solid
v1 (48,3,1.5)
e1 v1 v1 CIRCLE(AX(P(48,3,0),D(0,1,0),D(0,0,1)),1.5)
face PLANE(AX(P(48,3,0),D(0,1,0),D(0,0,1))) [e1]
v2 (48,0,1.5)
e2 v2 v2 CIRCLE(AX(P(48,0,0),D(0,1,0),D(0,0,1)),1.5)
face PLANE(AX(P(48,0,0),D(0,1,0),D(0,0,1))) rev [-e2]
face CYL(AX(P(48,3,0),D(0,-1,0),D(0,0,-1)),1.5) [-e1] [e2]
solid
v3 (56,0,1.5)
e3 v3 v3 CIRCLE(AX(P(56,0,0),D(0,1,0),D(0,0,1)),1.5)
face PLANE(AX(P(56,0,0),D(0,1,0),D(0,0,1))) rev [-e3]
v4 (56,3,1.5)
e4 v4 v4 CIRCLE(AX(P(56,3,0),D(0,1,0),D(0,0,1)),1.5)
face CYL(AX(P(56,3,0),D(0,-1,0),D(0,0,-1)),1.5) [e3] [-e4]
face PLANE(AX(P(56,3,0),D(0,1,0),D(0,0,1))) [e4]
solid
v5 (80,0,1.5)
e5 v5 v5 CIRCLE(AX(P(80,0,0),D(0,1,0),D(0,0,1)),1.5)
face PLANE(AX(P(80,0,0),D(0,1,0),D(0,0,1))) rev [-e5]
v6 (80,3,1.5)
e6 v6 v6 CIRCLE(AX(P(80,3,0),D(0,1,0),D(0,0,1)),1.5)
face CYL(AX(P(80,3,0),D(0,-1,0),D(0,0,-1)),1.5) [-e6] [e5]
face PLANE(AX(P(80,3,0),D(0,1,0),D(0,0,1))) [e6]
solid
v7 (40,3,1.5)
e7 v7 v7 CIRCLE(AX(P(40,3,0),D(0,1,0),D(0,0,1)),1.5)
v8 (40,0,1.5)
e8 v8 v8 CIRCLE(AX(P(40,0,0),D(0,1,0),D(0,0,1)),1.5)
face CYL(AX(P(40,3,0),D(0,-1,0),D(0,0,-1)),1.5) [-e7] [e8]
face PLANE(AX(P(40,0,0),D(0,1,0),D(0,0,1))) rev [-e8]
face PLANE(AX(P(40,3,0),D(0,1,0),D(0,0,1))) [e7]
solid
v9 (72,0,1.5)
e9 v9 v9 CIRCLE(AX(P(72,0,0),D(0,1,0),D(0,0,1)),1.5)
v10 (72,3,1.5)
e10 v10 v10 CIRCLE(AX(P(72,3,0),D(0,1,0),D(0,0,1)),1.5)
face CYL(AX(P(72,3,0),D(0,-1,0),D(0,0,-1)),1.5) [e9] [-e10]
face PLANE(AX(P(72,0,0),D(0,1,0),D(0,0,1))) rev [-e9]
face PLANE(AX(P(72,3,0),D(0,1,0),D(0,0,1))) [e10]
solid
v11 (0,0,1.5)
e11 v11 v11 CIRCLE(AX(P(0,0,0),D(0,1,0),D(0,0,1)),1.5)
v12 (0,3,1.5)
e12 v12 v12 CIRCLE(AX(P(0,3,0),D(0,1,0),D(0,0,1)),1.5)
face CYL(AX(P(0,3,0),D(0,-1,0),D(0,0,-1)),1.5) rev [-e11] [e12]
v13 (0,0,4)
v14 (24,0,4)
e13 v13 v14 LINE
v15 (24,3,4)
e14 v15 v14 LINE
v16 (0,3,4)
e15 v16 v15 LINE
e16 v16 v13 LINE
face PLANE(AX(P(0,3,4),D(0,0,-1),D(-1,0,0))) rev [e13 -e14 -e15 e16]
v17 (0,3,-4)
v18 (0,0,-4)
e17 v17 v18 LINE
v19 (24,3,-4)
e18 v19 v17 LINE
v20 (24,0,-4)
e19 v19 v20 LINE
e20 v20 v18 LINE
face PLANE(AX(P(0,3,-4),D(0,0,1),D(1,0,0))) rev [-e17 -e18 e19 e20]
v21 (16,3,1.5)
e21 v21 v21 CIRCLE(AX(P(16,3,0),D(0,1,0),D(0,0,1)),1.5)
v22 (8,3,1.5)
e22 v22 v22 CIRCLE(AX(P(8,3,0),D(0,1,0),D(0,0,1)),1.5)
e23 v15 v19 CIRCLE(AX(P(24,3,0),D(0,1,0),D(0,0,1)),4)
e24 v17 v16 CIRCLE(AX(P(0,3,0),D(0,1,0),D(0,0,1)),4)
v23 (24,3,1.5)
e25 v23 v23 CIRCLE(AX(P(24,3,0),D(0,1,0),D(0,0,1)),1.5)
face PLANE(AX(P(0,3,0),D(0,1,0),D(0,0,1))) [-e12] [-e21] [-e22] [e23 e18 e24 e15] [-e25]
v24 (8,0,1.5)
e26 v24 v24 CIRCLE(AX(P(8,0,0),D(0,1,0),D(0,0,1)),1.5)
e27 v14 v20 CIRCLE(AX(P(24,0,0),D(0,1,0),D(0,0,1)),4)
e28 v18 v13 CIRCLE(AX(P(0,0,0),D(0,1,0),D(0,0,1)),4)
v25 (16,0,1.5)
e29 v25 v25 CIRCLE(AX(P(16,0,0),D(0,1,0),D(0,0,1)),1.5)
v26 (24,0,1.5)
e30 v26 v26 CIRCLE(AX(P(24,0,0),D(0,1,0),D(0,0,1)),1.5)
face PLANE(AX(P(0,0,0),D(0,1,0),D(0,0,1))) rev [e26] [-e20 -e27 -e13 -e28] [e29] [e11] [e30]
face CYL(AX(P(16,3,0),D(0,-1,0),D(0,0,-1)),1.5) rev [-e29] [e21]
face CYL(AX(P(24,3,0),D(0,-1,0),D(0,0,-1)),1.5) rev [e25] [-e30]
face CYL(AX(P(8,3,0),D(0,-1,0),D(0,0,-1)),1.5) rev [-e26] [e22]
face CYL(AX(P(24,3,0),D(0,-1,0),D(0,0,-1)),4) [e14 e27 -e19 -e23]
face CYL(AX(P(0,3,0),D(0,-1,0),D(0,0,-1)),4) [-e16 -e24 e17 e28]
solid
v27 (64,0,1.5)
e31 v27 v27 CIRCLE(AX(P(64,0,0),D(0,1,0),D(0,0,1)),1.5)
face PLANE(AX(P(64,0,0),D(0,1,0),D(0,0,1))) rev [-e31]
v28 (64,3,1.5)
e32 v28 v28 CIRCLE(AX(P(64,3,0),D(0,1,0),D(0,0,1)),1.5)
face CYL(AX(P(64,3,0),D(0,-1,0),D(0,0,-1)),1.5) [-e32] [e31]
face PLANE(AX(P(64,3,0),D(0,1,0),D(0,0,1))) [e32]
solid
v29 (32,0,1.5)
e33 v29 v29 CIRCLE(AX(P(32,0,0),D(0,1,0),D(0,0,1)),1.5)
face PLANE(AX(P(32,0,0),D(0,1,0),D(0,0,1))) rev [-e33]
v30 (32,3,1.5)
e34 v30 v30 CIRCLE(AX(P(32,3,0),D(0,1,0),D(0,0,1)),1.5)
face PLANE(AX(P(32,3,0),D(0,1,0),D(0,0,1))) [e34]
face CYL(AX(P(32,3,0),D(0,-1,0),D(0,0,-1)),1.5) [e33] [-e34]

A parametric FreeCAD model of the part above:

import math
import FreeCAD as App
import Part
import Sketcher
from FreeCAD import Vector
Q = App.Units.Quantity

doc = App.newDocument("Part")
params = doc.addObject("Spreadsheet::Sheet", "Params")
for row, (alias, value) in enumerate([
    ("sketch1_diameter", "3 mm"),
    ("pad1_length", "3 mm"),
    ("sketch2_diameter", "3 mm"),
    ("pad2_length", "3 mm"),
    ("sketch3_diameter", "3 mm"),
    ("pad3_length", "3 mm"),
    ("sketch4_diameter", "3 mm"),
    ("pad4_length", "3 mm"),
    ("sketch5_diameter", "3 mm"),
    ("pad5_length", "3 mm"),
    ("sketch6_diameter", "3 mm"),
    ("pad6_length", "3 mm"),
    ("sketch7_diameter", "3 mm"),
    ("pad7_length", "3 mm"),
    ("sketch8_diameter", "3 mm"),
    ("sketch8_radius", "4 mm"),
    ("sketch8_width", "24 mm"),
    ("pad8_length", "3 mm"),
], start=1):
    params.set(f"A{row}", alias)
    params.set(f"B{row}", "=" + value)
    params.setAlias(f"B{row}", alias)

body = doc.addObject("PartDesign::Body", "Body")

sketch1 = body.newObject("Sketcher::SketchObject", "Sketch")
sketch1.AttachmentSupport = (doc.getObject("XZ_Plane"), [""])
sketch1.MapMode = "FlatFace"
sketch1.addGeometry(Part.Circle(Vector(32, 0, 0), Vector(0, 0, 1), 1.5), False)
sketch1.addConstraint([
    Sketcher.Constraint("PointOnObject", 0, 3, -1),
    Sketcher.Constraint("Diameter", 0, Q("3 mm")),
    Sketcher.Constraint("DistanceX", -1, 1, 0, 3, Q("32 mm")),
])
sketch1.setExpression("Constraints[1]", "Params.sketch1_diameter")
pad1 = body.newObject("PartDesign::Pad", "Pad")
pad1.Profile = sketch1
pad1.setExpression("Length", "Params.pad1_length")
pad1.Reversed = True
body2 = doc.addObject("PartDesign::Body", "Body001")

sketch2 = body2.newObject("Sketcher::SketchObject", "Sketch001")
sketch2.AttachmentSupport = (doc.getObject("XZ_Plane001"), [""])
sketch2.MapMode = "FlatFace"
sketch2.addGeometry(Part.Circle(Vector(40, 0, 0), Vector(0, 0, 1), 1.5), False)
sketch2.addConstraint([
    Sketcher.Constraint("PointOnObject", 0, 3, -1),
    Sketcher.Constraint("Diameter", 0, Q("3 mm")),
    Sketcher.Constraint("DistanceX", -1, 1, 0, 3, Q("40 mm")),
])
sketch2.setExpression("Constraints[1]", "Params.sketch2_diameter")
pad2 = body2.newObject("PartDesign::Pad", "Pad001")
pad2.Profile = sketch2
pad2.setExpression("Length", "Params.pad2_length")
pad2.Reversed = True
body3 = doc.addObject("PartDesign::Body", "Body002")

sketch3 = body3.newObject("Sketcher::SketchObject", "Sketch002")
sketch3.AttachmentSupport = (doc.getObject("XZ_Plane002"), [""])
sketch3.MapMode = "FlatFace"
sketch3.addGeometry(Part.Circle(Vector(48, 0, 0), Vector(0, 0, 1), 1.5), False)
sketch3.addConstraint([
    Sketcher.Constraint("PointOnObject", 0, 3, -1),
    Sketcher.Constraint("Diameter", 0, Q("3 mm")),
    Sketcher.Constraint("DistanceX", -1, 1, 0, 3, Q("48 mm")),
])
sketch3.setExpression("Constraints[1]", "Params.sketch3_diameter")
pad3 = body3.newObject("PartDesign::Pad", "Pad002")
pad3.Profile = sketch3
pad3.setExpression("Length", "Params.pad3_length")
pad3.Reversed = True
body4 = doc.addObject("PartDesign::Body", "Body003")

sketch4 = body4.newObject("Sketcher::SketchObject", "Sketch003")
sketch4.AttachmentSupport = (doc.getObject("XZ_Plane003"), [""])
sketch4.MapMode = "FlatFace"
sketch4.addGeometry(Part.Circle(Vector(56, 0, 0), Vector(0, 0, 1), 1.5), False)
sketch4.addConstraint([
    Sketcher.Constraint("PointOnObject", 0, 3, -1),
    Sketcher.Constraint("Diameter", 0, Q("3 mm")),
    Sketcher.Constraint("DistanceX", -1, 1, 0, 3, Q("56 mm")),
])
sketch4.setExpression("Constraints[1]", "Params.sketch4_diameter")
pad4 = body4.newObject("PartDesign::Pad", "Pad003")
pad4.Profile = sketch4
pad4.setExpression("Length", "Params.pad4_length")
pad4.Reversed = True
body5 = doc.addObject("PartDesign::Body", "Body004")

sketch5 = body5.newObject("Sketcher::SketchObject", "Sketch004")
sketch5.AttachmentSupport = (doc.getObject("XZ_Plane004"), [""])
sketch5.MapMode = "FlatFace"
sketch5.addGeometry(Part.Circle(Vector(64, 0, 0), Vector(0, 0, 1), 1.5), False)
sketch5.addConstraint([
    Sketcher.Constraint("PointOnObject", 0, 3, -1),
    Sketcher.Constraint("Diameter", 0, Q("3 mm")),
    Sketcher.Constraint("DistanceX", -1, 1, 0, 3, Q("64 mm")),
])
sketch5.setExpression("Constraints[1]", "Params.sketch5_diameter")
pad5 = body5.newObject("PartDesign::Pad", "Pad004")
pad5.Profile = sketch5
pad5.setExpression("Length", "Params.pad5_length")
pad5.Reversed = True
body6 = doc.addObject("PartDesign::Body", "Body005")

sketch6 = body6.newObject("Sketcher::SketchObject", "Sketch005")
sketch6.AttachmentSupport = (doc.getObject("XZ_Plane005"), [""])
sketch6.MapMode = "FlatFace"
sketch6.addGeometry(Part.Circle(Vector(72, 0, 0), Vector(0, 0, 1), 1.5), False)
sketch6.addConstraint([
    Sketcher.Constraint("PointOnObject", 0, 3, -1),
    Sketcher.Constraint("Diameter", 0, Q("3 mm")),
    Sketcher.Constraint("DistanceX", -1, 1, 0, 3, Q("72 mm")),
])
sketch6.setExpression("Constraints[1]", "Params.sketch6_diameter")
pad6 = body6.newObject("PartDesign::Pad", "Pad005")
pad6.Profile = sketch6
pad6.setExpression("Length", "Params.pad6_length")
pad6.Reversed = True
body7 = doc.addObject("PartDesign::Body", "Body006")

sketch7 = body7.newObject("Sketcher::SketchObject", "Sketch006")
sketch7.AttachmentSupport = (doc.getObject("XZ_Plane006"), [""])
sketch7.MapMode = "FlatFace"
sketch7.addGeometry(Part.Circle(Vector(80, 0, 0), Vector(0, 0, 1), 1.5), False)
sketch7.addConstraint([
    Sketcher.Constraint("PointOnObject", 0, 3, -1),
    Sketcher.Constraint("Diameter", 0, Q("3 mm")),
    Sketcher.Constraint("DistanceX", -1, 1, 0, 3, Q("80 mm")),
])
sketch7.setExpression("Constraints[1]", "Params.sketch7_diameter")
pad7 = body7.newObject("PartDesign::Pad", "Pad006")
pad7.Profile = sketch7
pad7.setExpression("Length", "Params.pad7_length")
pad7.Reversed = True
body8 = doc.addObject("PartDesign::Body", "Body007")

sketch8 = body8.newObject("Sketcher::SketchObject", "Sketch007")
sketch8.AttachmentSupport = (doc.getObject("XZ_Plane007"), [""])
sketch8.MapMode = "FlatFace"
sketch8.addGeometry([
    Part.LineSegment(Vector(24, -4, 0), Vector(0, -4, 0)),
    Part.ArcOfCircle(Part.Circle(Vector(0, 0, 0), Vector(0, 0, 1), 4), math.radians(90), math.radians(270)),
    Part.LineSegment(Vector(0, 4, 0), Vector(24, 4, 0)),
    Part.ArcOfCircle(Part.Circle(Vector(24, 0, 0), Vector(0, 0, 1), 4), math.radians(-90), math.radians(90)),
    Part.Circle(Vector(24, 0, 0), Vector(0, 0, 1), 1.5),
    Part.Circle(Vector(16, 0, 0), Vector(0, 0, 1), 1.5),
    Part.Circle(Vector(8, 0, 0), Vector(0, 0, 1), 1.5),
    Part.Circle(Vector(0, 0, 0), Vector(0, 0, 1), 1.5),
], False)
sketch8.addConstraint([
    Sketcher.Constraint("Tangent", 0, 2, 1, 2),
    Sketcher.Constraint("Tangent", 1, 1, 2, 1),
    Sketcher.Constraint("Tangent", 2, 2, 3, 2),
    Sketcher.Constraint("Tangent", 3, 1, 0, 1),
    Sketcher.Constraint("Horizontal", 0),
    Sketcher.Constraint("Horizontal", 2),
    Sketcher.Constraint("Coincident", 1, 3, -1, 1),
    Sketcher.Constraint("Coincident", 7, 3, -1, 1),
    Sketcher.Constraint("Coincident", 4, 3, 3, 3),
    Sketcher.Constraint("Equal", 4, 5),
    Sketcher.Constraint("Equal", 5, 6),
    Sketcher.Constraint("Equal", 6, 7),
    Sketcher.Constraint("PointOnObject", 5, 3, -1),
    Sketcher.Constraint("PointOnObject", 6, 3, -1),
    Sketcher.Constraint("Diameter", 4, Q("3 mm")),
    Sketcher.Constraint("Radius", 1, Q("4 mm")),
    Sketcher.Constraint("DistanceX", 0, 2, 0, 1, Q("24 mm")),
    Sketcher.Constraint("DistanceX", -1, 1, 5, 3, Q("16 mm")),
    Sketcher.Constraint("DistanceX", -1, 1, 6, 3, Q("8 mm")),
])
sketch8.setExpression("Constraints[14]", "Params.sketch8_diameter")
sketch8.setExpression("Constraints[15]", "Params.sketch8_radius")
sketch8.setExpression("Constraints[16]", "Params.sketch8_width")
pad8 = body8.newObject("PartDesign::Pad", "Pad007")
pad8.Profile = sketch8
pad8.setExpression("Length", "Params.pad8_length")
pad8.Reversed = True

doc.recompute()
